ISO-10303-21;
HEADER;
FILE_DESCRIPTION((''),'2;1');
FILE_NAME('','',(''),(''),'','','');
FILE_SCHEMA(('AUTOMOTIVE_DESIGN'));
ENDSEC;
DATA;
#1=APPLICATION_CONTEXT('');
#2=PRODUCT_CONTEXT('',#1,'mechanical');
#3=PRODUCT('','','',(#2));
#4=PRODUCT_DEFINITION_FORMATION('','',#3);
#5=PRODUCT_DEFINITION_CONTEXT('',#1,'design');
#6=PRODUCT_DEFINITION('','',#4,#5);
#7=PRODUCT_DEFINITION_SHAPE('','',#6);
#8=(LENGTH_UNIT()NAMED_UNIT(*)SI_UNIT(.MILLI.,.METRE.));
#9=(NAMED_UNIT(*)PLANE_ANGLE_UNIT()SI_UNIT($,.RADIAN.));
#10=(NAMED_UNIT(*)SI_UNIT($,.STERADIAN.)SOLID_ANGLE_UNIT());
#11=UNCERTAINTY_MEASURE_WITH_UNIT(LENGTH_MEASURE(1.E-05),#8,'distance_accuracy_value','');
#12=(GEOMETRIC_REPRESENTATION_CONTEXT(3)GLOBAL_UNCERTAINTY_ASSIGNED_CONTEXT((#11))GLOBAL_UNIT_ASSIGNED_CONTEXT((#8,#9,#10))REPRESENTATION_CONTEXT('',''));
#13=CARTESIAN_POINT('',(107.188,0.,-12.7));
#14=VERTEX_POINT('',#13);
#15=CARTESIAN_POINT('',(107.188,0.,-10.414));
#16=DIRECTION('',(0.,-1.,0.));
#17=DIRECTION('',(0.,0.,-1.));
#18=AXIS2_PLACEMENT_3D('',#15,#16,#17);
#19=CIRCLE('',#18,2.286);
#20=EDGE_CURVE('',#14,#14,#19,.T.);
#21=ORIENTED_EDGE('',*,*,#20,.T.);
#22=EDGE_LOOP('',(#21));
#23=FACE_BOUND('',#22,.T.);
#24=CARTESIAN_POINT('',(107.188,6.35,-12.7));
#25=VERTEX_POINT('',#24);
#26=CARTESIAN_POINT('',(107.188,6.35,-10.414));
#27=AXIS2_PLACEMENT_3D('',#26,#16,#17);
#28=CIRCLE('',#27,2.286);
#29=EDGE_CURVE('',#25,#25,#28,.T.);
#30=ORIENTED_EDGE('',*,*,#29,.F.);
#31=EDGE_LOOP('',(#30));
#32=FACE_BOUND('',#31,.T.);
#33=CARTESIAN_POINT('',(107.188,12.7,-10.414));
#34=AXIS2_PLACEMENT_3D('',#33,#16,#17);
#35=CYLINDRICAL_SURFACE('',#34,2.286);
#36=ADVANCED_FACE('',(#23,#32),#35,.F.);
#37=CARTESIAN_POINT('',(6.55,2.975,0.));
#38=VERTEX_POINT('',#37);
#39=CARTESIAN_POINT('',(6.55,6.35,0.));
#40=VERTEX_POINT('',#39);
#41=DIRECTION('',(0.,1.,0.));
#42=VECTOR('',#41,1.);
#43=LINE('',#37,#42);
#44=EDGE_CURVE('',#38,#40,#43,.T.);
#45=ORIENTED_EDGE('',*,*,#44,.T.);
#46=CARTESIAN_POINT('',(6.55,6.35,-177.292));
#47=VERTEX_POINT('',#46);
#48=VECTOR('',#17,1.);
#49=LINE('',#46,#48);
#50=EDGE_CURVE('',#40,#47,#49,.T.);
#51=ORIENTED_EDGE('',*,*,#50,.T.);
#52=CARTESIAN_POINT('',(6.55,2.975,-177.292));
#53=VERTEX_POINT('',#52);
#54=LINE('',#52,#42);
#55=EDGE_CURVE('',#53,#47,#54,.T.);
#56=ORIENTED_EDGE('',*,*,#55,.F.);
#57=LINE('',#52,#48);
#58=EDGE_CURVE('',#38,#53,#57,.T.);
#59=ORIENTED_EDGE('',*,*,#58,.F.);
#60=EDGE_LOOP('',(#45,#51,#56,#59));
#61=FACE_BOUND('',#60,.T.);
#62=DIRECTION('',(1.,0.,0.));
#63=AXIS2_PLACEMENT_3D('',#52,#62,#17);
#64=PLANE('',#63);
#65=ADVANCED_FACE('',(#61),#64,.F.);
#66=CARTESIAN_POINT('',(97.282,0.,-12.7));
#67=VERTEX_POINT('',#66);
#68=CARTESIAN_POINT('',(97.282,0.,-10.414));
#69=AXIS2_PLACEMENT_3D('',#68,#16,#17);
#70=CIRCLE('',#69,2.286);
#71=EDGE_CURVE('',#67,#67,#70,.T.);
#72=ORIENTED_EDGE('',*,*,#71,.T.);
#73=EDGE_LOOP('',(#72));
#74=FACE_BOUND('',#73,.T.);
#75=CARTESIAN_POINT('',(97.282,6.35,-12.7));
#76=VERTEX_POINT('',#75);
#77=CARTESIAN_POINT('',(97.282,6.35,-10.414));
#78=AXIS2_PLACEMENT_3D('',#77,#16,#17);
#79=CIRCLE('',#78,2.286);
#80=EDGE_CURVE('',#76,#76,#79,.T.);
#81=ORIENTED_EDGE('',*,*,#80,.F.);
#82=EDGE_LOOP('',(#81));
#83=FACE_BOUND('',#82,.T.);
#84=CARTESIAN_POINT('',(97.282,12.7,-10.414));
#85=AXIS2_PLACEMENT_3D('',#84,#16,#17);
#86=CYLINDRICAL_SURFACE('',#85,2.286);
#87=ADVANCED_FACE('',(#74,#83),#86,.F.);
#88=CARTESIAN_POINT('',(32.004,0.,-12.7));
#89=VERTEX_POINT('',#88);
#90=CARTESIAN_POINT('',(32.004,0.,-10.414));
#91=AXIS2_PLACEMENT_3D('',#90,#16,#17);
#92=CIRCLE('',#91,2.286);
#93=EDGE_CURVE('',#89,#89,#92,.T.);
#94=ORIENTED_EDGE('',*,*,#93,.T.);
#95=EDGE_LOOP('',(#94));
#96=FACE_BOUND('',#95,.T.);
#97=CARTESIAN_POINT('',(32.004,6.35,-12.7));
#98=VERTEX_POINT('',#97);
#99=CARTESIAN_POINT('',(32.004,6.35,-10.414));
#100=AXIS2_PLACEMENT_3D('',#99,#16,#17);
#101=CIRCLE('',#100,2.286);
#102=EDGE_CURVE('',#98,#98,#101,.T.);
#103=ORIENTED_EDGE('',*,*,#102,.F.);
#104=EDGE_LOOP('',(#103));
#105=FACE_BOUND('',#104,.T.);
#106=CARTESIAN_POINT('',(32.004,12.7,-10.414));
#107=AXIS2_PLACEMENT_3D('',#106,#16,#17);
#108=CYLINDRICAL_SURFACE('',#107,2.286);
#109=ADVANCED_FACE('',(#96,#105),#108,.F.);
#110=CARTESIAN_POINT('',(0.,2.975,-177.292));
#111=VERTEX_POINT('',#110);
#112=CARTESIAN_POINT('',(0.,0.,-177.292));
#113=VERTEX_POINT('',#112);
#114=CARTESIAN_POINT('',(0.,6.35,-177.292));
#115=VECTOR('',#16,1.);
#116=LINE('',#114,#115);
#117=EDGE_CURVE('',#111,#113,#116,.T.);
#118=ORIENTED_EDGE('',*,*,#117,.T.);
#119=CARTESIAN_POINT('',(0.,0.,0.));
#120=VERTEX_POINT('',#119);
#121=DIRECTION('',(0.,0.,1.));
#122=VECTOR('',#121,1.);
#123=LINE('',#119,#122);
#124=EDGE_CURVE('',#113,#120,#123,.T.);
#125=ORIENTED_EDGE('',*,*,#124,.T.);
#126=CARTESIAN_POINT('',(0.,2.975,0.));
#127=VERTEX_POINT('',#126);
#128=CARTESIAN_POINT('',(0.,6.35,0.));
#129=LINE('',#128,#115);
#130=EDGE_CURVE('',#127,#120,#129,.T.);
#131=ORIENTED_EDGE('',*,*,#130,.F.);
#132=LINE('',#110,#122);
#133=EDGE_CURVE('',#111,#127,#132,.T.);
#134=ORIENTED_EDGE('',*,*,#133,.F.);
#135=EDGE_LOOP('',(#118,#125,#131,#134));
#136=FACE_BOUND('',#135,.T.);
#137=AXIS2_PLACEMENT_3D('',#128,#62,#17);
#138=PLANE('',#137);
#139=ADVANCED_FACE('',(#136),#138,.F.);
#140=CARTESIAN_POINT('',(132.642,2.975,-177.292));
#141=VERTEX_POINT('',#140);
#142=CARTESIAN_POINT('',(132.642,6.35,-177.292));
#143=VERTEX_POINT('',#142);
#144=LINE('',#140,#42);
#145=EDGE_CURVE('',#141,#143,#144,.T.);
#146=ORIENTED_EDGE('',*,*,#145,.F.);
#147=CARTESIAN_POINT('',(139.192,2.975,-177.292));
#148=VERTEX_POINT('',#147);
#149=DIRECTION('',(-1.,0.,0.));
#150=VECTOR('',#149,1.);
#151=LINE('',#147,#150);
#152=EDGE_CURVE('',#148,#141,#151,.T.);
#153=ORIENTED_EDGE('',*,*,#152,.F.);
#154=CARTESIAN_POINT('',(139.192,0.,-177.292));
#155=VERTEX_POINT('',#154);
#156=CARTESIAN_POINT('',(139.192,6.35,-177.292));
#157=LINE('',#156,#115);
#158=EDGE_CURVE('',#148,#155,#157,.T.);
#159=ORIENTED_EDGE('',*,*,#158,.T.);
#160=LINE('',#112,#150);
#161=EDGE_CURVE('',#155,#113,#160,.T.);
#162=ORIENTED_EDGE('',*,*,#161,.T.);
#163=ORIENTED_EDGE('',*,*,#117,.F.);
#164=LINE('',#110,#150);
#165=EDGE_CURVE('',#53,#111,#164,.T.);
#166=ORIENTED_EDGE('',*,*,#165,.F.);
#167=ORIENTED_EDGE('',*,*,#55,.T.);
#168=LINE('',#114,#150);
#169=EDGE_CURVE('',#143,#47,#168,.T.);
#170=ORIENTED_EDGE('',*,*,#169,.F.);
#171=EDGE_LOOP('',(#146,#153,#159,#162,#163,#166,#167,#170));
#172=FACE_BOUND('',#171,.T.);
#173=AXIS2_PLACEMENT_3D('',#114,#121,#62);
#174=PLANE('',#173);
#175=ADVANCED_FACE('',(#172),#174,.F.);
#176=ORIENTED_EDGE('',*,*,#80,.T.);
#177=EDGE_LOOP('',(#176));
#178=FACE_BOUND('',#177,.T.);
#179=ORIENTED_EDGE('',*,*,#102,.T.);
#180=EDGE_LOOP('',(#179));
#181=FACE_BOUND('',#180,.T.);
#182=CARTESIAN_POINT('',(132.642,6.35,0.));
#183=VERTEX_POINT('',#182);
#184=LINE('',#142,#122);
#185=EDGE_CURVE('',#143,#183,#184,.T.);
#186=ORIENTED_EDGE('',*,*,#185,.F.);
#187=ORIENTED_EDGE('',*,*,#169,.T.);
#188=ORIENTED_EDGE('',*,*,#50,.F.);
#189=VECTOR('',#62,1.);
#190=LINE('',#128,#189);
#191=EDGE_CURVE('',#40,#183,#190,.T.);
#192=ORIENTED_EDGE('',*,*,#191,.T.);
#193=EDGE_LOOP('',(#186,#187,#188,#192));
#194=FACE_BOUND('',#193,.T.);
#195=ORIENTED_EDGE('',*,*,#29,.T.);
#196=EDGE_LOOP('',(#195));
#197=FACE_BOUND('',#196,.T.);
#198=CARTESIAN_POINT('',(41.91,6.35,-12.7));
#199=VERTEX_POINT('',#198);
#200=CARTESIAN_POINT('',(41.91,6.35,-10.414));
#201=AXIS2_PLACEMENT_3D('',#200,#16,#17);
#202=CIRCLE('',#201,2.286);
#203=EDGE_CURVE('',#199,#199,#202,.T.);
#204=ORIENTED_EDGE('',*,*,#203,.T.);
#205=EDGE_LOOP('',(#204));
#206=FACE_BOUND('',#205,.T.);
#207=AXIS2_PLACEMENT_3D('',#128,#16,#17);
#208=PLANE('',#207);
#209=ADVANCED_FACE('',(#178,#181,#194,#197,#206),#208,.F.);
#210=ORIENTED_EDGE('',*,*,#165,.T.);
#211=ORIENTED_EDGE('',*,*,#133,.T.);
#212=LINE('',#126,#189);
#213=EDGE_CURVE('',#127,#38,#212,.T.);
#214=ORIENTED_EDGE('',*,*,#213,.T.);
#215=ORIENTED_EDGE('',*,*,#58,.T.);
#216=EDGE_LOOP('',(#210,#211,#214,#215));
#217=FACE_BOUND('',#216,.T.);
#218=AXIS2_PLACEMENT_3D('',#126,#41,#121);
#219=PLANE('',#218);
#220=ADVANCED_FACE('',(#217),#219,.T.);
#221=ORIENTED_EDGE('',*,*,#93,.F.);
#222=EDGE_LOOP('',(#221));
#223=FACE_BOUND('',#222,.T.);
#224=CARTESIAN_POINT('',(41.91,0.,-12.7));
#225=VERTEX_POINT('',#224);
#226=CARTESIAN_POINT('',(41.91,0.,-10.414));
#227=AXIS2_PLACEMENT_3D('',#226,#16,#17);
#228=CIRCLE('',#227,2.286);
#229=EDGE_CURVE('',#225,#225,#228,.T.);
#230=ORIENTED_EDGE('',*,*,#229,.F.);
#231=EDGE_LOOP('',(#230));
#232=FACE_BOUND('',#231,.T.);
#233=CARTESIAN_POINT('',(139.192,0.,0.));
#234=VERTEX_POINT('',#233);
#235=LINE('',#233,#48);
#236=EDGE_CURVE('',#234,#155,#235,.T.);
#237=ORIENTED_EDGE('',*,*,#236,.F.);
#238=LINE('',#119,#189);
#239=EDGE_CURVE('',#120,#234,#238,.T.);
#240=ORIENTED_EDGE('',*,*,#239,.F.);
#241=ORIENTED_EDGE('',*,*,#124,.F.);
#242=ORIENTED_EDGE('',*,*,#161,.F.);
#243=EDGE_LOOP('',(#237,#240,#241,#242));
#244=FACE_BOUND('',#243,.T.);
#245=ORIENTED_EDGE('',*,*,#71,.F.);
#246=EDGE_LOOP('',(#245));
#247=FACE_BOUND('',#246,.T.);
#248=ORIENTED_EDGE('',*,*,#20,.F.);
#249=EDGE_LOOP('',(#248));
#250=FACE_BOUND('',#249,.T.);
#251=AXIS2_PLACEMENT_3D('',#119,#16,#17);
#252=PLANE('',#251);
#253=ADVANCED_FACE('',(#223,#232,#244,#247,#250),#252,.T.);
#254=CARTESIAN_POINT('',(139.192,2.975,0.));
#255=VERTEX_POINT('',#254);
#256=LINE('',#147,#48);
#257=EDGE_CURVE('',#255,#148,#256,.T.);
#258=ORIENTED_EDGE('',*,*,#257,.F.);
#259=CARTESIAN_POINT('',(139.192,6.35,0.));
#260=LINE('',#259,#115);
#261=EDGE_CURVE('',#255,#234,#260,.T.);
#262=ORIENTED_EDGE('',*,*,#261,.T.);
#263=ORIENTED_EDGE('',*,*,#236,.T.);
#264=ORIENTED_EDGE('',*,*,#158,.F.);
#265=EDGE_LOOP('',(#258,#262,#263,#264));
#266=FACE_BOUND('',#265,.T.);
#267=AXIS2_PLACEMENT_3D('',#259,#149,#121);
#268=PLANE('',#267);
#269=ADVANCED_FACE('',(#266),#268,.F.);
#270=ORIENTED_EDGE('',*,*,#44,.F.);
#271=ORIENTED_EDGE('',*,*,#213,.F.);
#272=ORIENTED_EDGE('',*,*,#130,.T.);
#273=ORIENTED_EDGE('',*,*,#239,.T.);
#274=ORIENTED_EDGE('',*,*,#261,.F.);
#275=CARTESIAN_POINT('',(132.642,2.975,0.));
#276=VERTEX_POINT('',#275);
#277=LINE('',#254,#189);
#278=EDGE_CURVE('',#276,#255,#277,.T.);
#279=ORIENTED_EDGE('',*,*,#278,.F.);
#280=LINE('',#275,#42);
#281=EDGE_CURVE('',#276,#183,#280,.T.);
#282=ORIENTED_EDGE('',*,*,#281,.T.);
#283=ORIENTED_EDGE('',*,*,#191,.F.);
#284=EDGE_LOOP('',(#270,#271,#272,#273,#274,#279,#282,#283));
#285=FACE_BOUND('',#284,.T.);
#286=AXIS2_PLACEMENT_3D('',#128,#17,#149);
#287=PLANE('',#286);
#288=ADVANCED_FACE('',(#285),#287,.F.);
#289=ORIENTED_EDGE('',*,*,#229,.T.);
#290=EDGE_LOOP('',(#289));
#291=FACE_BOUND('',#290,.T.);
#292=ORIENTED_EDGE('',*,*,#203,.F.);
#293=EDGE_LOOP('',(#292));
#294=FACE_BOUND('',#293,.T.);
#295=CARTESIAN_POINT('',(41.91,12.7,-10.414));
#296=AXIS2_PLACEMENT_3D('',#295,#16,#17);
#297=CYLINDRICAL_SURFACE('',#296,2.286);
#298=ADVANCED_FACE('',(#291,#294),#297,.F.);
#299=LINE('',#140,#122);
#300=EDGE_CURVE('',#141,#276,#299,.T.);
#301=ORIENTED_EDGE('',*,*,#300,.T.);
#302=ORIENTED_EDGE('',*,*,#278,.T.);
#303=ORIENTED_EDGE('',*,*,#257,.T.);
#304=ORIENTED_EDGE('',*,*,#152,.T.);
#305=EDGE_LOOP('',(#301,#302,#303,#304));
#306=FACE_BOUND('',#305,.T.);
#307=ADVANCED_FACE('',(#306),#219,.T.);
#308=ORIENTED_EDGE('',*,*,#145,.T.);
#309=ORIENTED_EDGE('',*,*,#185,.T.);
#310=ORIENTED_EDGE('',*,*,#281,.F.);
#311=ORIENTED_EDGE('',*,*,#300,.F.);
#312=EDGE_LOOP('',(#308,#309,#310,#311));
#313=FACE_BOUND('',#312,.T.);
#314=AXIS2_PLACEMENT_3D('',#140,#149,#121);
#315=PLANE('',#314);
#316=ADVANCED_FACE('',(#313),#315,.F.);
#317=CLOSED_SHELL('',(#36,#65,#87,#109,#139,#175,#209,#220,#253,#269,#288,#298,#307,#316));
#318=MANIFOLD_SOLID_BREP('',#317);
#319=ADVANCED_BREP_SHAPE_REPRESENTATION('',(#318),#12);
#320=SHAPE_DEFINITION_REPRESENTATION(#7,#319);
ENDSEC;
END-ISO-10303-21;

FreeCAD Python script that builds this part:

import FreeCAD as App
import Part
import Sketcher

V = App.Vector
Q = App.Units.Quantity


def add_polygon(sketch, points):
    """Adds a closed chain of lines whose ends are joined by coincident constraints."""
    first, n = sketch.GeometryCount, len(points)
    for a, b in zip(points, points[1:] + points[:1]):
        sketch.addGeometry(Part.LineSegment(App.Vector(*a, 0), App.Vector(*b, 0)), False)
    for i in range(n):
        sketch.addConstraint(Sketcher.Constraint("Coincident", first + i, 2, first + (i + 1) % n, 1))

doc = App.newDocument("Part")
params = doc.addObject("Spreadsheet::Sheet", "Params")
for row, (alias, value) in enumerate([
    ("sketch1_width", "5.48 in"),
    ("sketch1_height", "6.98 in"),
    ("pad1_length", "0.25 in"),
    ("sketch2_height", "6.98 in"),
    ("pocket1_length", "3.375 mm"),
    ("sketch3_diameter", "0.18 in"),
    ("pocket2_length", "0.5 in"),
], start=1):
    params.set(f"A{row}", alias)
    params.set(f"B{row}", "=" + value)
    params.setAlias(f"B{row}", alias)

body = doc.addObject("PartDesign::Body", "Body")

sketch1 = body.newObject("Sketcher::SketchObject", "Sketch")
sketch1.AttachmentSupport = (doc.getObject("XZ_Plane"), [""])
sketch1.MapMode = "FlatFace"
add_polygon(sketch1, [(0, -177), (0, 0), (139, 0), (139, -177)])
sketch1.addConstraint([
    Sketcher.Constraint("Vertical", 0),
    Sketcher.Constraint("Horizontal", 1),
    Sketcher.Constraint("Vertical", 2),
    Sketcher.Constraint("Horizontal", 3),
    Sketcher.Constraint("Coincident", 0, 2, -1, 1),
    Sketcher.Constraint("DistanceX", 1, 1, 1, 2, Q("5.48 in")),
    Sketcher.Constraint("DistanceY", 0, 1, 0, 2, Q("6.98 in")),
])
sketch1.setExpression("Constraints[9]", "Params.sketch1_width")
sketch1.setExpression("Constraints[10]", "Params.sketch1_height")
pad1 = body.newObject("PartDesign::Pad", "Pad")
pad1.Profile = sketch1
pad1.setExpression("Length", "Params.pad1_length")
pad1.Reversed = True

sketch2 = body.newObject("Sketcher::SketchObject", "Sketch001")
sketch2.AttachmentSupport = (doc.getObject("XZ_Plane"), [""])
sketch2.MapMode = "FlatFace"
sketch2.AttachmentOffset = App.Placement(V(0, 0, -0.25 * 25.4), App.Rotation())
add_polygon(sketch2, [(133, -177), (133, 0), (139, 0), (139, -177)])
add_polygon(sketch2, [(0, -177), (0, 0), (7, 0), (7, -177)])
sketch2.addConstraint([
    Sketcher.Constraint("Vertical", 0),
    Sketcher.Constraint("Horizontal", 1),
    Sketcher.Constraint("Vertical", 2),
    Sketcher.Constraint("Horizontal", 3),
    Sketcher.Constraint("Vertical", 4),
    Sketcher.Constraint("Horizontal", 5),
    Sketcher.Constraint("Vertical", 6),
    Sketcher.Constraint("Horizontal", 7),
    Sketcher.Constraint("Coincident", 4, 2, -1, 1),
    Sketcher.Constraint("PointOnObject", 0, 2, -1),
    Sketcher.Constraint("Horizontal", 3, 2, 6, 2),
    Sketcher.Constraint("Equal", 3, 5),
    Sketcher.Constraint("DistanceY", 0, 1, 0, 2, Q("6.98 in")),
    Sketcher.Constraint("DistanceX", -1, 1, 1, 2, Q("5.48 in")),
    Sketcher.Constraint("DistanceX", 1, 1, 1, 2, 6.55),
])
sketch2.setExpression("Constraints[20]", "Params.sketch2_height")
pocket1 = body.newObject("PartDesign::Pocket", "Pocket")
pocket1.Profile = sketch2
pocket1.setExpression("Length", "Params.pocket1_length")
pocket1.Reversed = True

sketch3 = body.newObject("Sketcher::SketchObject", "Sketch002")
sketch3.AttachmentSupport = (doc.getObject("XZ_Plane"), [""])
sketch3.MapMode = "FlatFace"
sketch3.addGeometry([
    Part.Circle(V(107.2, -10.4, 0), V(0, 0, 1), 2.3),
    Part.Circle(V(97.3, -10.4, 0), V(0, 0, 1), 2.3),
    Part.Circle(V(41.9, -10.4, 0), V(0, 0, 1), 2.3),
    Part.Circle(V(32, -10.4, 0), V(0, 0, 1), 2.3),
], False)
sketch3.addConstraint([
    Sketcher.Constraint("Equal", 0, 1),
    Sketcher.Constraint("Equal", 1, 2),
    Sketcher.Constraint("Equal", 2, 3),
    Sketcher.Constraint("Horizontal", 0, 3, 1, 3),
    Sketcher.Constraint("Horizontal", 1, 3, 2, 3),
    Sketcher.Constraint("Horizontal", 2, 3, 3, 3),
    Sketcher.Constraint("Diameter", 0, Q("0.18 in")),
    Sketcher.Constraint("DistanceX", -1, 1, 0, 3, Q("4.22 in")),
    Sketcher.Constraint("DistanceY", 0, 3, -1, 1, Q("0.41 in")),
    Sketcher.Constraint("DistanceX", -1, 1, 1, 3, Q("3.83 in")),
    Sketcher.Constraint("DistanceX", -1, 1, 2, 3, Q("1.65 in")),
    Sketcher.Constraint("DistanceX", -1, 1, 3, 3, Q("1.26 in")),
])
sketch3.setExpression("Constraints[6]", "Params.sketch3_diameter")
pocket2 = body.newObject("PartDesign::Pocket", "Pocket001")
pocket2.Profile = sketch3
pocket2.setExpression("Length", "Params.pocket2_length")

doc.recompute()
